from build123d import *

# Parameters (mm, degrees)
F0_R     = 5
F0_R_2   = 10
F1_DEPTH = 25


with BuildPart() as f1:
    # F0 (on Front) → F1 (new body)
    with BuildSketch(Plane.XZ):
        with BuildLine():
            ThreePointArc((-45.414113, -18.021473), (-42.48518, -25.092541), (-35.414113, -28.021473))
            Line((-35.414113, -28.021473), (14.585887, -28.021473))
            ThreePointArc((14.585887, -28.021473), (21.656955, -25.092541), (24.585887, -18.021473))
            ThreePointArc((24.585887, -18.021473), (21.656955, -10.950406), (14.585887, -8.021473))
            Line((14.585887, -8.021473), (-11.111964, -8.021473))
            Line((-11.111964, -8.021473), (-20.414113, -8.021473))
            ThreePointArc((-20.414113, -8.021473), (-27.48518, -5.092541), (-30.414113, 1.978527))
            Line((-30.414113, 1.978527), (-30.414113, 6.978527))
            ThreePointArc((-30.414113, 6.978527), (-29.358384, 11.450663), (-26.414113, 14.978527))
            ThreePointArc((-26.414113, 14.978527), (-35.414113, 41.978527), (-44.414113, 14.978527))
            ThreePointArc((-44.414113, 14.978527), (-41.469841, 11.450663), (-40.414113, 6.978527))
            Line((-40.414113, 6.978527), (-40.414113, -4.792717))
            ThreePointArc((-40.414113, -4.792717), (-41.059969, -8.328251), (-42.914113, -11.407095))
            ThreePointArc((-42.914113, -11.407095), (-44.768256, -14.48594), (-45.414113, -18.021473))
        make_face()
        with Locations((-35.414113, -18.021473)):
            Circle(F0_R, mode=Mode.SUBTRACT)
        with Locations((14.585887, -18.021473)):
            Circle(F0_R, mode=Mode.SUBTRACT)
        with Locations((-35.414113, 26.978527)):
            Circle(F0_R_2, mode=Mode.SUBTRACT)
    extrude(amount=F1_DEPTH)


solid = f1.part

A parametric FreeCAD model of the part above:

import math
import FreeCAD as App
import Part
import Sketcher
from FreeCAD import Vector

doc = App.newDocument("Part")
body = doc.addObject("PartDesign::Body", "Body")

# Sketch on XZ plane
sketch1 = doc.addObject("Sketcher::SketchObject", "Sketch")
body.addObject(sketch1)
sketch1.AttachmentSupport = (doc.XZ_Plane, [""])
sketch1.MapMode = "FlatFace"
sketch1.addGeometry(Part.ArcOfCircle(Part.Circle(Vector(-35.414112, -18.021472, 0), Vector(0, 0, 1), 10.000001), math.radians(-179.999994), math.radians(-90.000006)), False)
sketch1.addGeometry(Part.LineSegment(Vector(-35.414113, -28.021473, 0), Vector(14.585887, -28.021473, 0)), False)
sketch1.addGeometry(Part.ArcOfCircle(Part.Circle(Vector(14.585888, -18.021474, 0), Vector(0, 0, 1), 9.999999), math.radians(-90.000004), math.radians(0.000004)), False)
sketch1.addGeometry(Part.ArcOfCircle(Part.Circle(Vector(14.585886, -18.021474, 0), Vector(0, 0, 1), 10.000001), math.radians(0.000006), math.radians(89.999994)), False)
sketch1.addGeometry(Part.LineSegment(Vector(14.585887, -8.021473, 0), Vector(-20.414113, -8.021473, 0)), False)
sketch1.addGeometry(Part.ArcOfCircle(Part.Circle(Vector(-20.414112, 1.978528, 0), Vector(0, 0, 1), 10.000001), math.radians(-179.999994), math.radians(-90.000006)), False)
sketch1.addGeometry(Part.LineSegment(Vector(-30.414113, 1.978527, 0), Vector(-30.414113, 6.978527, 0)), False)
sketch1.addGeometry(Part.ArcOfCircle(Part.Circle(Vector(-20.414106, 6.978524, 0), Vector(0, 0, 1), 10.000007), math.radians(126.869917), math.radians(179.999981)), False)
sketch1.addGeometry(Part.ArcOfCircle(Part.Circle(Vector(-35.414113, 26.978527, 0), Vector(0, 0, 1), 15), math.radians(-53.130102), math.radians(233.130102)), False)
sketch1.addGeometry(Part.ArcOfCircle(Part.Circle(Vector(-50.414112, 6.978527, 0), Vector(0, 0, 1), 9.999999), math.radians(-0.000002), math.radians(53.130105)), False)
sketch1.addGeometry(Part.LineSegment(Vector(-40.414113, 6.978527, 0), Vector(-40.414113, -4.792717, 0)), False)
sketch1.addGeometry(Part.ArcOfCircle(Part.Circle(Vector(-50.414104, -4.79272, 0), Vector(0, 0, 1), 9.999991), math.radians(-41.409642), math.radians(0.000018)), False)
sketch1.addGeometry(Part.ArcOfCircle(Part.Circle(Vector(-35.414103, -18.021477, 0), Vector(0, 0, 1), 10.00001), math.radians(138.590399), math.radians(179.999978)), False)
sketch1.addGeometry(Part.Circle(Vector(-35.414113, -18.021473, 0), Vector(0, 0, 1), 5), False)
sketch1.addGeometry(Part.Circle(Vector(14.585887, -18.021473, 0), Vector(0, 0, 1), 5), False)
sketch1.addGeometry(Part.Circle(Vector(-35.414113, 26.978527, 0), Vector(0, 0, 1), 10), False)
sketch1.addConstraint(Sketcher.Constraint("Tangent", 0, 2, 1, 1))
sketch1.addConstraint(Sketcher.Constraint("Tangent", 1, 2, 2, 1))
sketch1.addConstraint(Sketcher.Constraint("Tangent", 2, 2, 3, 1))
sketch1.addConstraint(Sketcher.Constraint("Tangent", 3, 2, 4, 1))
sketch1.addConstraint(Sketcher.Constraint("Tangent", 4, 2, 5, 2))
sketch1.addConstraint(Sketcher.Constraint("Tangent", 5, 1, 6, 1))
sketch1.addConstraint(Sketcher.Constraint("Tangent", 6, 2, 7, 2))
sketch1.addConstraint(Sketcher.Constraint("Tangent", 7, 1, 8, 1))
sketch1.addConstraint(Sketcher.Constraint("Tangent", 8, 2, 9, 2))
sketch1.addConstraint(Sketcher.Constraint("Tangent", 9, 1, 10, 1))
sketch1.addConstraint(Sketcher.Constraint("Tangent", 10, 2, 11, 2))
sketch1.addConstraint(Sketcher.Constraint("Tangent", 11, 1, 12, 1))
sketch1.addConstraint(Sketcher.Constraint("Tangent", 12, 2, 0, 1))
sketch1.addConstraint(Sketcher.Constraint("Horizontal", 1))
sketch1.addConstraint(Sketcher.Constraint("Horizontal", 4))
sketch1.addConstraint(Sketcher.Constraint("Vertical", 6))
sketch1.addConstraint(Sketcher.Constraint("Vertical", 10))
sketch1.addConstraint(Sketcher.Constraint("Coincident", 13, 3, 0, 3))
sketch1.addConstraint(Sketcher.Constraint("Coincident", 14, 3, 2, 3))
sketch1.addConstraint(Sketcher.Constraint("Coincident", 15, 3, 8, 3))
sketch1.addConstraint(Sketcher.Constraint("Equal", 0, 2))
sketch1.addConstraint(Sketcher.Constraint("Equal", 2, 3))
sketch1.addConstraint(Sketcher.Constraint("Equal", 3, 5))
sketch1.addConstraint(Sketcher.Constraint("Equal", 5, 9))
sketch1.addConstraint(Sketcher.Constraint("Equal", 13, 14))
sketch1.addConstraint(Sketcher.Constraint("Equal", 9, 15))
sketch1.addConstraint(Sketcher.Constraint("Horizontal", 14, 3, 2, 2))
sketch1.addConstraint(Sketcher.Constraint("Horizontal", 9, 3, 6, 2))
sketch1.addConstraint(Sketcher.Constraint("Horizontal", 7, 1, 8, 2))
sketch1.addConstraint(Sketcher.Constraint("Horizontal", 2, 2, 12, 2))
sketch1.addConstraint(Sketcher.Constraint("Vertical", 0, 3, 8, 3))
sketch1.addConstraint(Sketcher.Constraint("Diameter", 13, 10.0))
sketch1.addConstraint(Sketcher.Constraint("Diameter", 15, 20.0))
sketch1.addConstraint(Sketcher.Constraint("Radius", 8, 15.0))
sketch1.addConstraint(Sketcher.Constraint("DistanceX", 1, 1, 1, 2, 50.0))
sketch1.addConstraint(Sketcher.Constraint("DistanceX", 4, 2, 4, 1, 35.0))
sketch1.addConstraint(Sketcher.Constraint("DistanceY", 6, 1, 6, 2, 5.0))
sketch1.addConstraint(Sketcher.Constraint("DistanceX", 11, 3, 12, 3, 15.0))
sketch1.addConstraint(Sketcher.Constraint("DistanceX", 11, 1, 10, 2, 2.5))
sketch1.addConstraint(Sketcher.Constraint("DistanceX", 0, 3, -1, 1, 35.414112))
sketch1.addConstraint(Sketcher.Constraint("DistanceY", 0, 3, -1, 1, 18.021472))
pad1 = doc.addObject("PartDesign::Pad", "Pad")
body.addObject(pad1)
pad1.Profile = sketch1
pad1.Length = 25

doc.recompute()
